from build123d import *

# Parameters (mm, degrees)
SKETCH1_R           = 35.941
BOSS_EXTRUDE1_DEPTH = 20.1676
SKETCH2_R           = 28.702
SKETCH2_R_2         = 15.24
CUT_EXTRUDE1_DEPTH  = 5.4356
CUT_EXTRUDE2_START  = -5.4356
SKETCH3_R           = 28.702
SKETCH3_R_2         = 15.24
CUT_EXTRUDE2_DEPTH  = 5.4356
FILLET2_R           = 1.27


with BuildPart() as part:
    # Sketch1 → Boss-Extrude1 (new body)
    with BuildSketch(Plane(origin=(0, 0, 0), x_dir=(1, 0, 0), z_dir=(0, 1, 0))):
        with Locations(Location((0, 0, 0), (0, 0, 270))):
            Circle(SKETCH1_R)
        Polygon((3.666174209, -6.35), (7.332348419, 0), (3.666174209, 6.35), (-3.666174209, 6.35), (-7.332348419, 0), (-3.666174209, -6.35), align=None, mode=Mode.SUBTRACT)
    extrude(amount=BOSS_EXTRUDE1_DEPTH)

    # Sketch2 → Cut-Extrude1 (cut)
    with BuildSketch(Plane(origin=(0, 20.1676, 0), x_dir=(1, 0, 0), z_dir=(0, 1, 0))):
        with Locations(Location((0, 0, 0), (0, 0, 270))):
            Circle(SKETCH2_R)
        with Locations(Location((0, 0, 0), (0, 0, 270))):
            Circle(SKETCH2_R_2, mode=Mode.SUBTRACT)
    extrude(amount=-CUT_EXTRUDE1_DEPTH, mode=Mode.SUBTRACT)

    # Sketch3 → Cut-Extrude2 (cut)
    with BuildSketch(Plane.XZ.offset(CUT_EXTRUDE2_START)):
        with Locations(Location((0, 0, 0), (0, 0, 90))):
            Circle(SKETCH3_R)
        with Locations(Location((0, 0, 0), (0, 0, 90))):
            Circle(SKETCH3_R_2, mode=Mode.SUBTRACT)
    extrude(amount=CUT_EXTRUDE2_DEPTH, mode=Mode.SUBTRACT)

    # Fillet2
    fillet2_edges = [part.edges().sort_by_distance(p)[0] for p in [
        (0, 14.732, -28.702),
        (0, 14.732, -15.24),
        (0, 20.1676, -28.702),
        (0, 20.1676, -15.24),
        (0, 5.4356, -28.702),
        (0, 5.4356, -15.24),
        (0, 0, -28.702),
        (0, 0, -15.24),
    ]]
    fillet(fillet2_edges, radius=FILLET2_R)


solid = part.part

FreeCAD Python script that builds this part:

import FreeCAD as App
import Part
import Sketcher

V = App.Vector
Q = App.Units.Quantity


def edges_at(feature, points):
    """Names of the edges that pass closest to the given points."""
    edges = feature.Shape.Edges
    near = lambda p: min(range(len(edges)), key=lambda i: edges[i].distToShape(Part.Vertex(*p))[0])
    return sorted({f"Edge{near(p) + 1}" for p in points})

doc = App.newDocument("Part")
body = doc.addObject("PartDesign::Body", "Body")

sketch1 = doc.addObject("Sketcher::SketchObject", "Sketch")
body.addObject(sketch1)
sketch1.AttachmentSupport = (doc.XZ_Plane, [""])
sketch1.MapMode = "FlatFace"
sketch1.addGeometry(Part.Circle(V(0, 0, 0), V(0, 0, 1), 36), False)
sketch1.addGeometry(Part.LineSegment(V(7, 0, 0), V(4, 6, 0)), False)
sketch1.addGeometry(Part.LineSegment(V(4, 6, 0), V(-4, 6, 0)), False)
sketch1.addGeometry(Part.LineSegment(V(-4, 6, 0), V(-7, 0, 0)), False)
sketch1.addGeometry(Part.LineSegment(V(-7, 0, 0), V(-4, -6, 0)), False)
sketch1.addGeometry(Part.LineSegment(V(-4, -6, 0), V(4, -6, 0)), False)
sketch1.addGeometry(Part.LineSegment(V(4, -6, 0), V(7, 0, 0)), False)
sketch1.addConstraint(Sketcher.Constraint("Coincident", 1, 2, 2, 1))
sketch1.addConstraint(Sketcher.Constraint("Coincident", 2, 2, 3, 1))
sketch1.addConstraint(Sketcher.Constraint("Coincident", 3, 2, 4, 1))
sketch1.addConstraint(Sketcher.Constraint("Coincident", 4, 2, 5, 1))
sketch1.addConstraint(Sketcher.Constraint("Coincident", 5, 2, 6, 1))
sketch1.addConstraint(Sketcher.Constraint("Coincident", 6, 2, 1, 1))
sketch1.addConstraint(Sketcher.Constraint("Horizontal", 2))
sketch1.addConstraint(Sketcher.Constraint("Horizontal", 5))
sketch1.addConstraint(Sketcher.Constraint("Coincident", 0, 3, -1, 1))
sketch1.addConstraint(Sketcher.Constraint("Symmetric", 1, 2, 4, 2, -1, 1))
sketch1.addConstraint(Sketcher.Constraint("Symmetric", 3, 2, 6, 2, -1, 1))
sketch1.addConstraint(Sketcher.Constraint("PointOnObject", 3, 2, -1))
sketch1.addConstraint(Sketcher.Constraint("Parallel", 3, 6))
sketch1.addConstraint(Sketcher.Constraint("Vertical", 2, 2, 4, 2))
sketch1.addConstraint(Sketcher.Constraint("Diameter", 0, Q("2.83 in")))
sketch1.addConstraint(Sketcher.Constraint("Angle", 1, Q("120 deg")))
sketch1.addConstraint(Sketcher.Constraint("DistanceY", 4, 2, 2, 2, Q("0.5 in")))
sketch1.addConstraint(Sketcher.Constraint("DistanceX", 2, 2, 2, 1, Q("7.332348 mm")))
pad1 = doc.addObject("PartDesign::Pad", "Pad")
body.addObject(pad1)
pad1.Profile = sketch1
pad1.Length = Q("0.794 in")
pad1.Reversed = True

sketch2 = doc.addObject("Sketcher::SketchObject", "Sketch001")
body.addObject(sketch2)
sketch2.AttachmentSupport = (doc.XZ_Plane, [""])
sketch2.MapMode = "FlatFace"
sketch2.AttachmentOffset = App.Placement(V(0, 0, -0.794 * 25.4), App.Rotation())
sketch2.addGeometry(Part.Circle(V(0, 0, 0), V(0, 0, 1), 29), False)
sketch2.addGeometry(Part.Circle(V(0, 0, 0), V(0, 0, 1), 15), False)
sketch2.addConstraint(Sketcher.Constraint("Coincident", 0, 3, -1, 1))
sketch2.addConstraint(Sketcher.Constraint("Coincident", 1, 3, -1, 1))
sketch2.addConstraint(Sketcher.Constraint("Diameter", 1, Q("1.2 in")))
sketch2.addConstraint(Sketcher.Constraint("Diameter", 0, Q("2.26 in")))
pocket1 = doc.addObject("PartDesign::Pocket", "Pocket")
body.addObject(pocket1)
pocket1.Profile = sketch2
pocket1.Length = Q("0.214 in")
pocket1.Reversed = True

sketch3 = doc.addObject("Sketcher::SketchObject", "Sketch002")
body.addObject(sketch3)
sketch3.AttachmentSupport = (doc.XZ_Plane, [""])
sketch3.MapMode = "FlatFace"
sketch3.AttachmentOffset = App.Placement(V(0, 0, -0.214 * 25.4), App.Rotation())
sketch3.addGeometry(Part.Circle(V(0, 0, 0), V(0, 0, 1), 29), False)
sketch3.addGeometry(Part.Circle(V(0, 0, 0), V(0, 0, 1), 15), False)
sketch3.addConstraint(Sketcher.Constraint("Coincident", 0, 3, -1, 1))
sketch3.addConstraint(Sketcher.Constraint("Coincident", 1, 3, -1, 1))
sketch3.addConstraint(Sketcher.Constraint("Diameter", 1, Q("1.2 in")))
sketch3.addConstraint(Sketcher.Constraint("Diameter", 0, Q("2.26 in")))
pocket2 = doc.addObject("PartDesign::Pocket", "Pocket001")
body.addObject(pocket2)
pocket2.Profile = sketch3
pocket2.Length = Q("0.214 in")
pocket2.Reversed = True
doc.recompute()

fillet = doc.addObject("PartDesign::Fillet", "Fillet")
body.addObject(fillet)
fillet.Base = (pocket2, edges_at(pocket2, [
    (0, 14.732, -28.702),
    (0, 14.732, -15.24),
    (0, 20.168, -28.702),
    (0, 20.168, -15.24),
    (0, 5.436, -28.702),
    (0, 5.436, -15.24),
    (0, 0, -28.702),
    (0, 0, -15.24),
]))
fillet.Radius = Q("0.05 in")

doc.recompute()
